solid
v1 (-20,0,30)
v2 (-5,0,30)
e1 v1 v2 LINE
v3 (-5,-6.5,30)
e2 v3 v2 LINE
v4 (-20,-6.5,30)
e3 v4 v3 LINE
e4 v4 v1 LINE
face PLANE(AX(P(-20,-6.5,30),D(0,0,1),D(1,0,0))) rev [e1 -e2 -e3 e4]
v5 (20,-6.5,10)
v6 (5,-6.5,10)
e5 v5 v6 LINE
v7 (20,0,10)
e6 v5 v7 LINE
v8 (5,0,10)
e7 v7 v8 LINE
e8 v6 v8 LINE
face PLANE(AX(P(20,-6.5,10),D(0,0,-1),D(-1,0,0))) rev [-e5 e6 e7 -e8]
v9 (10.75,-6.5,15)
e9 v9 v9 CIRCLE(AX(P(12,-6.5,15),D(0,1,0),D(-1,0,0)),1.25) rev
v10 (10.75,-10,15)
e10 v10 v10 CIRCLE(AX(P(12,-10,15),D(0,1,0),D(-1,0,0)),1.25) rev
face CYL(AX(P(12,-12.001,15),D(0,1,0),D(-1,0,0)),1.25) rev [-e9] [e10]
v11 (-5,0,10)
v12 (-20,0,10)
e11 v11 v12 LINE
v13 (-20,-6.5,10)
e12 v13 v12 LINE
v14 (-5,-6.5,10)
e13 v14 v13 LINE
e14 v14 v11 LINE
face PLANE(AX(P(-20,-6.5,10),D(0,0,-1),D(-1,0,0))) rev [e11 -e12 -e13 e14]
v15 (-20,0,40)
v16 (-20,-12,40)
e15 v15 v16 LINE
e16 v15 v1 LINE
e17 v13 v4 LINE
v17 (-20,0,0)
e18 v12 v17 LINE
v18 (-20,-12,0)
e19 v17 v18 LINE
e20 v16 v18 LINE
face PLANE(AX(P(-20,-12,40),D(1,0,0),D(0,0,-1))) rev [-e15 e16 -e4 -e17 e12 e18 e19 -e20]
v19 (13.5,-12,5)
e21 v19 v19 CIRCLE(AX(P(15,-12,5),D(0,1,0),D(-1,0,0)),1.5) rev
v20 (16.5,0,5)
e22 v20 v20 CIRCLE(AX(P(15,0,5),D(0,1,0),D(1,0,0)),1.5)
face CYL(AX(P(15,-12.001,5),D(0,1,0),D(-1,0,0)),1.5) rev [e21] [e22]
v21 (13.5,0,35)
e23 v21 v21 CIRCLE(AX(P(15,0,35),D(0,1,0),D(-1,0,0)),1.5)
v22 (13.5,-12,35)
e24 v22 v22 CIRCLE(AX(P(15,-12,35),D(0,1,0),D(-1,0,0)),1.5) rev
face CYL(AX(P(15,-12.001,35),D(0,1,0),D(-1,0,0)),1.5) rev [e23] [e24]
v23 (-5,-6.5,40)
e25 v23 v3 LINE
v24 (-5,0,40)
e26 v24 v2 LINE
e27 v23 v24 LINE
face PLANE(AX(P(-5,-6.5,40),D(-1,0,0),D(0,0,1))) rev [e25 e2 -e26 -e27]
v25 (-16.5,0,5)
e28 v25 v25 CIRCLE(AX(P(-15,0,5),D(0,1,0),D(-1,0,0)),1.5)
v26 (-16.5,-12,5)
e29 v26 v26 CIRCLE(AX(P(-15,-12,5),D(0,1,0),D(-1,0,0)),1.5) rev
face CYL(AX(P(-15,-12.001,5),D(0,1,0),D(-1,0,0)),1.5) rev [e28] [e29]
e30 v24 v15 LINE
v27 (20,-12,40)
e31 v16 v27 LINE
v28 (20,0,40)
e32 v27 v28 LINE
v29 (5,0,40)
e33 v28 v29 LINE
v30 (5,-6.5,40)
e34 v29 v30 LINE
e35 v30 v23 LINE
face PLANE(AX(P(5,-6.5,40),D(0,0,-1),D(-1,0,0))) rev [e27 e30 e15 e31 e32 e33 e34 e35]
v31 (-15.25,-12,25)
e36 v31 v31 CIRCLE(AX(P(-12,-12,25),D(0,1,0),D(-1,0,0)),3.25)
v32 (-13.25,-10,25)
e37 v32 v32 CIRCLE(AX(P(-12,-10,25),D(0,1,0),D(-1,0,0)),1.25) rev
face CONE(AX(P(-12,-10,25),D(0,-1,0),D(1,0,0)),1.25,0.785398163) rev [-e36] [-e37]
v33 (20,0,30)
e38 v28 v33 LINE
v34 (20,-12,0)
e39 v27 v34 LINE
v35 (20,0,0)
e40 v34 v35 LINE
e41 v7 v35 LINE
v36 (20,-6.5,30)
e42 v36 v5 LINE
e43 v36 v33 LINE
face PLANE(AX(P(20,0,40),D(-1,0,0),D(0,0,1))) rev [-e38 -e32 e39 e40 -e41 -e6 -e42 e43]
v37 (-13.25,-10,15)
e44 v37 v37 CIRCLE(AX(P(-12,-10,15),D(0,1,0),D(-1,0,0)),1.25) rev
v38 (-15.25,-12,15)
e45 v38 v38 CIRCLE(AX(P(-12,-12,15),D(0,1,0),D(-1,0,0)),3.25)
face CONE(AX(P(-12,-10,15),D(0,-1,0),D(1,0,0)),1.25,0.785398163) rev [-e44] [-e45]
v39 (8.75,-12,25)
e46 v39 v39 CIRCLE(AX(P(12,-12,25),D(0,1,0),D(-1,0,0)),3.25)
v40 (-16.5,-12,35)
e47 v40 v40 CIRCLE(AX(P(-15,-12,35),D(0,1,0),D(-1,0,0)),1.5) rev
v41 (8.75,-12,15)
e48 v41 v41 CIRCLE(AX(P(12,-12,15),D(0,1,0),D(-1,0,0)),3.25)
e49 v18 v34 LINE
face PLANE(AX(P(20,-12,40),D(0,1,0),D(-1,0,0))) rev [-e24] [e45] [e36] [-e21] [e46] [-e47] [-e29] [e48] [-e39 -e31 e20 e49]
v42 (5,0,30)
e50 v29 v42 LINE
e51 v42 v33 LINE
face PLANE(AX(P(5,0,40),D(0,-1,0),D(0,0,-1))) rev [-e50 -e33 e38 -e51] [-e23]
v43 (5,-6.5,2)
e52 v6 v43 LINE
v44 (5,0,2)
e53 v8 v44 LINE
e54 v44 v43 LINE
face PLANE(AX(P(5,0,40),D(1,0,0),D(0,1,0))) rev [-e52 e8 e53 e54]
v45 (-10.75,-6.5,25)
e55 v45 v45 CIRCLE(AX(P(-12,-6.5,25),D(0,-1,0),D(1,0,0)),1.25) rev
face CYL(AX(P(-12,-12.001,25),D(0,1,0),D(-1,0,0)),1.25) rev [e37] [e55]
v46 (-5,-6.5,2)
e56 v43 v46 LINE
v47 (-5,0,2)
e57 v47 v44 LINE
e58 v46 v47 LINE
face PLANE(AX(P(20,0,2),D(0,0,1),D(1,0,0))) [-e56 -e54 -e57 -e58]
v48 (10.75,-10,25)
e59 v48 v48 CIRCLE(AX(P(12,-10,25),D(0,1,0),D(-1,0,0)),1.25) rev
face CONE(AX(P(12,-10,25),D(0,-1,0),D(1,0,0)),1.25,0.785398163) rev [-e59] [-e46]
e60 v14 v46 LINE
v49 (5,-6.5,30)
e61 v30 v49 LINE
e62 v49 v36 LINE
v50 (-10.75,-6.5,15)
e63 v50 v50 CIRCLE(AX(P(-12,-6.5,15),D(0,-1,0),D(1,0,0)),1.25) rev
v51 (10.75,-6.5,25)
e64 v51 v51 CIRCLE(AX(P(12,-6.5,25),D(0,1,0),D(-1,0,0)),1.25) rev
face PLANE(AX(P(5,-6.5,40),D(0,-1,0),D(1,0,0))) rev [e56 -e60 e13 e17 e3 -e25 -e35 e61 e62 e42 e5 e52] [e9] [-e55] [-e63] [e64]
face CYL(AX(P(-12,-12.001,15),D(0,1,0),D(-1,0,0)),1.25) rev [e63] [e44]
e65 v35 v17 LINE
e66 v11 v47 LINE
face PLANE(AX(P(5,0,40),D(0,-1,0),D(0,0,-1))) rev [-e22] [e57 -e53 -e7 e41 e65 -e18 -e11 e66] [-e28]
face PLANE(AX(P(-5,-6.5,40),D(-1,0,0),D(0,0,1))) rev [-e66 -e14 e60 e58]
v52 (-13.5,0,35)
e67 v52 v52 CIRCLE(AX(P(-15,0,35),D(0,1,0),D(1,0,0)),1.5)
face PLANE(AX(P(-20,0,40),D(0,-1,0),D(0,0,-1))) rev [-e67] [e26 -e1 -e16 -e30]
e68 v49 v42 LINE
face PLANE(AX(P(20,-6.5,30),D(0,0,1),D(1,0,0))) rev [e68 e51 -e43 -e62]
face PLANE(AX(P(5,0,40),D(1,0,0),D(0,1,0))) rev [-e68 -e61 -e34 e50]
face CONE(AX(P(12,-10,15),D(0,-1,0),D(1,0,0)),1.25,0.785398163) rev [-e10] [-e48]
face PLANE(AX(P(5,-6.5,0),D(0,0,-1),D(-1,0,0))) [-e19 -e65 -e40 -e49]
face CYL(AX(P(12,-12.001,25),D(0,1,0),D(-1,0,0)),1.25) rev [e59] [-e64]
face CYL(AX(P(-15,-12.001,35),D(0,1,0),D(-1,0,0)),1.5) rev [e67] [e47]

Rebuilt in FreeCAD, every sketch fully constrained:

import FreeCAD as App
import Part
import Sketcher

V = App.Vector
Q = App.Units.Quantity


def edges_at(feature, points):
    """Names of the edges that pass closest to the given points."""
    edges = feature.Shape.Edges
    near = lambda p: min(range(len(edges)), key=lambda i: edges[i].distToShape(Part.Vertex(*p))[0])
    return sorted({f"Edge{near(p) + 1}" for p in points})

doc = App.newDocument("Part")
body = doc.addObject("PartDesign::Body", "Body")

# Sketch on XY plane
sketch1 = body.newObject("Sketcher::SketchObject", "Sketch")
sketch1.AttachmentSupport = (doc.getObject("XY_Plane"), [""])
sketch1.MapMode = "FlatFace"
sketch1.addGeometry(Part.LineSegment(V(20, 0, 0), V(5, 0, 0)), False)
sketch1.addGeometry(Part.LineSegment(V(5, 0, 0), V(5, -6, 0)), False)
sketch1.addGeometry(Part.LineSegment(V(5, -6, 0), V(-5, -6, 0)), False)
sketch1.addGeometry(Part.LineSegment(V(-5, -6, 0), V(-5, 0, 0)), False)
sketch1.addGeometry(Part.LineSegment(V(-5, 0, 0), V(-20, 0, 0)), False)
sketch1.addGeometry(Part.LineSegment(V(-20, 0, 0), V(-20, -12, 0)), False)
sketch1.addGeometry(Part.LineSegment(V(-20, -12, 0), V(20, -12, 0)), False)
sketch1.addGeometry(Part.LineSegment(V(20, -12, 0), V(20, 0, 0)), False)
sketch1.addConstraint(Sketcher.Constraint("Coincident", 0, 2, 1, 1))
sketch1.addConstraint(Sketcher.Constraint("Coincident", 1, 2, 2, 1))
sketch1.addConstraint(Sketcher.Constraint("Coincident", 2, 2, 3, 1))
sketch1.addConstraint(Sketcher.Constraint("Coincident", 3, 2, 4, 1))
sketch1.addConstraint(Sketcher.Constraint("Coincident", 4, 2, 5, 1))
sketch1.addConstraint(Sketcher.Constraint("Coincident", 5, 2, 6, 1))
sketch1.addConstraint(Sketcher.Constraint("Coincident", 6, 2, 7, 1))
sketch1.addConstraint(Sketcher.Constraint("Coincident", 7, 2, 0, 1))
sketch1.addConstraint(Sketcher.Constraint("Horizontal", 0))
sketch1.addConstraint(Sketcher.Constraint("Vertical", 1))
sketch1.addConstraint(Sketcher.Constraint("Horizontal", 2))
sketch1.addConstraint(Sketcher.Constraint("Vertical", 3))
sketch1.addConstraint(Sketcher.Constraint("Horizontal", 4))
sketch1.addConstraint(Sketcher.Constraint("Vertical", 5))
sketch1.addConstraint(Sketcher.Constraint("Horizontal", 6))
sketch1.addConstraint(Sketcher.Constraint("Vertical", 7))
sketch1.addConstraint(Sketcher.Constraint("Symmetric", 0, 2, 3, 2, -1, 1))
sketch1.addConstraint(Sketcher.Constraint("Symmetric", 4, 2, 7, 2, -2))
sketch1.addConstraint(Sketcher.Constraint("DistanceX", 0, 2, 0, 1, Q("15 mm")))
sketch1.addConstraint(Sketcher.Constraint("DistanceX", 2, 2, 2, 1, Q("10 mm")))
sketch1.addConstraint(Sketcher.Constraint("DistanceY", 5, 2, 5, 1, Q("12 mm")))
sketch1.addConstraint(Sketcher.Constraint("DistanceY", 1, 2, 1, 1, Q("6.5 mm")))
pad1 = body.newObject("PartDesign::Pad", "Pad")
pad1.Profile = sketch1
pad1.Length = 40

# Sketch on XZ plane
sketch2 = body.newObject("Sketcher::SketchObject", "Sketch001")
sketch2.AttachmentSupport = (doc.getObject("XZ_Plane"), [""])
sketch2.MapMode = "FlatFace"
sketch2.addGeometry(Part.Circle(V(-15, 5, 0), V(0, 0, 1), 1.5), False)
sketch2.addConstraint(Sketcher.Constraint("Diameter", 0, Q("3 mm")))
sketch2.addConstraint(Sketcher.Constraint("DistanceX", 0, 3, -1, 1, Q("15 mm")))
sketch2.addConstraint(Sketcher.Constraint("DistanceY", -1, 1, 0, 3, Q("5 mm")))
pocket1 = body.newObject("PartDesign::Pocket", "Pocket")
pocket1.Profile = sketch2
pocket1.Type = "UpToFirst"
pocket1.Reversed = True

# Sketch on XZ plane
sketch3 = body.newObject("Sketcher::SketchObject", "Sketch002")
sketch3.AttachmentSupport = (doc.getObject("XZ_Plane"), [""])
sketch3.MapMode = "FlatFace"
sketch3.addGeometry(Part.Circle(V(-15, 35, 0), V(0, 0, 1), 1.5), False)
sketch3.addConstraint(Sketcher.Constraint("Diameter", 0, Q("3 mm")))
sketch3.addConstraint(Sketcher.Constraint("DistanceX", 0, 3, -1, 1, Q("15 mm")))
sketch3.addConstraint(Sketcher.Constraint("DistanceY", -1, 1, 0, 3, Q("35 mm")))
pocket2 = body.newObject("PartDesign::Pocket", "Pocket001")
pocket2.Profile = sketch3
pocket2.Type = "UpToFirst"
pocket2.Reversed = True

# Sketch on XZ plane
sketch4 = body.newObject("Sketcher::SketchObject", "Sketch003")
sketch4.AttachmentSupport = (doc.getObject("XZ_Plane"), [""])
sketch4.MapMode = "FlatFace"
sketch4.addGeometry(Part.Circle(V(15, 35, 0), V(0, 0, 1), 1.5), False)
sketch4.addConstraint(Sketcher.Constraint("Diameter", 0, Q("3 mm")))
sketch4.addConstraint(Sketcher.Constraint("DistanceX", -1, 1, 0, 3, Q("15 mm")))
sketch4.addConstraint(Sketcher.Constraint("DistanceY", -1, 1, 0, 3, Q("35 mm")))
pocket3 = body.newObject("PartDesign::Pocket", "Pocket002")
pocket3.Profile = sketch4
pocket3.Type = "UpToFirst"
pocket3.Reversed = True

# Sketch on XZ plane
sketch5 = body.newObject("Sketcher::SketchObject", "Sketch004")
sketch5.AttachmentSupport = (doc.getObject("XZ_Plane"), [""])
sketch5.MapMode = "FlatFace"
sketch5.addGeometry(Part.Circle(V(15, 5, 0), V(0, 0, 1), 1.5), False)
sketch5.addConstraint(Sketcher.Constraint("Diameter", 0, Q("3 mm")))
sketch5.addConstraint(Sketcher.Constraint("DistanceX", -1, 1, 0, 3, Q("15 mm")))
sketch5.addConstraint(Sketcher.Constraint("DistanceY", -1, 1, 0, 3, Q("5 mm")))
pocket4 = body.newObject("PartDesign::Pocket", "Pocket003")
pocket4.Profile = sketch5
pocket4.Type = "UpToFirst"
pocket4.Reversed = True

# Sketch on XZ plane
sketch6 = body.newObject("Sketcher::SketchObject", "Sketch005")
sketch6.AttachmentSupport = (doc.getObject("XZ_Plane"), [""])
sketch6.MapMode = "FlatFace"
sketch6.addGeometry(Part.Circle(V(-12, 25, 0), V(0, 0, 1), 1.2), False)
sketch6.addConstraint(Sketcher.Constraint("Diameter", 0, Q("2.5 mm")))
sketch6.addConstraint(Sketcher.Constraint("DistanceX", 0, 3, -1, 1, Q("12 mm")))
sketch6.addConstraint(Sketcher.Constraint("DistanceY", -1, 1, 0, 3, Q("25 mm")))
pocket5 = body.newObject("PartDesign::Pocket", "Pocket004")
pocket5.Profile = sketch6
pocket5.Type = "UpToFirst"
pocket5.Reversed = True

# Sketch on XZ plane
sketch7 = body.newObject("Sketcher::SketchObject", "Sketch006")
sketch7.AttachmentSupport = (doc.getObject("XZ_Plane"), [""])
sketch7.MapMode = "FlatFace"
sketch7.addGeometry(Part.Circle(V(-12, 15, 0), V(0, 0, 1), 1.2), False)
sketch7.addConstraint(Sketcher.Constraint("Diameter", 0, Q("2.5 mm")))
sketch7.addConstraint(Sketcher.Constraint("DistanceX", 0, 3, -1, 1, Q("12 mm")))
sketch7.addConstraint(Sketcher.Constraint("DistanceY", -1, 1, 0, 3, Q("15 mm")))
pocket6 = body.newObject("PartDesign::Pocket", "Pocket005")
pocket6.Profile = sketch7
pocket6.Type = "UpToFirst"
pocket6.Reversed = True

# Sketch on XZ plane
sketch8 = body.newObject("Sketcher::SketchObject", "Sketch007")
sketch8.AttachmentSupport = (doc.getObject("XZ_Plane"), [""])
sketch8.MapMode = "FlatFace"
sketch8.addGeometry(Part.Circle(V(12, 25, 0), V(0, 0, 1), 1.2), False)
sketch8.addConstraint(Sketcher.Constraint("Diameter", 0, Q("2.5 mm")))
sketch8.addConstraint(Sketcher.Constraint("DistanceX", -1, 1, 0, 3, Q("12 mm")))
sketch8.addConstraint(Sketcher.Constraint("DistanceY", -1, 1, 0, 3, Q("25 mm")))
pocket7 = body.newObject("PartDesign::Pocket", "Pocket006")
pocket7.Profile = sketch8
pocket7.Type = "UpToFirst"
pocket7.Reversed = True

# Sketch on XZ plane
sketch9 = body.newObject("Sketcher::SketchObject", "Sketch008")
sketch9.AttachmentSupport = (doc.getObject("XZ_Plane"), [""])
sketch9.MapMode = "FlatFace"
sketch9.addGeometry(Part.Circle(V(12, 15, 0), V(0, 0, 1), 1.2), False)
sketch9.addConstraint(Sketcher.Constraint("Diameter", 0, Q("2.5 mm")))
sketch9.addConstraint(Sketcher.Constraint("DistanceX", -1, 1, 0, 3, Q("12 mm")))
sketch9.addConstraint(Sketcher.Constraint("DistanceY", -1, 1, 0, 3, Q("15 mm")))
pocket8 = body.newObject("PartDesign::Pocket", "Pocket007")
pocket8.Profile = sketch9
pocket8.Type = "UpToFirst"
pocket8.Reversed = True

# Sketch on XZ plane
sketch10 = body.newObject("Sketcher::SketchObject", "Sketch009")
sketch10.AttachmentSupport = (doc.getObject("XZ_Plane"), [""])
sketch10.MapMode = "FlatFace"
sketch10.addGeometry(Part.LineSegment(V(-20, 10, 0), V(-20, 30, 0)), False)
sketch10.addGeometry(Part.LineSegment(V(-20, 30, 0), V(-5, 30, 0)), False)
sketch10.addGeometry(Part.LineSegment(V(-5, 30, 0), V(-5, 10, 0)), False)
sketch10.addGeometry(Part.LineSegment(V(-5, 10, 0), V(-20, 10, 0)), False)
sketch10.addGeometry(Part.LineSegment(V(5, 10, 0), V(5, 30, 0)), False)
sketch10.addGeometry(Part.LineSegment(V(5, 30, 0), V(20, 30, 0)), False)
sketch10.addGeometry(Part.LineSegment(V(20, 30, 0), V(20, 10, 0)), False)
sketch10.addGeometry(Part.LineSegment(V(20, 10, 0), V(5, 10, 0)), False)
sketch10.addConstraint(Sketcher.Constraint("Coincident", 0, 2, 1, 1))
sketch10.addConstraint(Sketcher.Constraint("Coincident", 1, 2, 2, 1))
sketch10.addConstraint(Sketcher.Constraint("Coincident", 2, 2, 3, 1))
sketch10.addConstraint(Sketcher.Constraint("Coincident", 3, 2, 0, 1))
sketch10.addConstraint(Sketcher.Constraint("Coincident", 4, 2, 5, 1))
sketch10.addConstraint(Sketcher.Constraint("Coincident", 5, 2, 6, 1))
sketch10.addConstraint(Sketcher.Constraint("Coincident", 6, 2, 7, 1))
sketch10.addConstraint(Sketcher.Constraint("Coincident", 7, 2, 4, 1))
sketch10.addConstraint(Sketcher.Constraint("Vertical", 0))
sketch10.addConstraint(Sketcher.Constraint("Horizontal", 1))
sketch10.addConstraint(Sketcher.Constraint("Vertical", 2))
sketch10.addConstraint(Sketcher.Constraint("Horizontal", 3))
sketch10.addConstraint(Sketcher.Constraint("Vertical", 4))
sketch10.addConstraint(Sketcher.Constraint("Horizontal", 5))
sketch10.addConstraint(Sketcher.Constraint("Vertical", 6))
sketch10.addConstraint(Sketcher.Constraint("Horizontal", 7))
sketch10.addConstraint(Sketcher.Constraint("Symmetric", 1, 2, 4, 2, -2))
sketch10.addConstraint(Sketcher.Constraint("Symmetric", 3, 2, 6, 2, -2))
sketch10.addConstraint(Sketcher.Constraint("DistanceX", 1, 1, 1, 2, Q("15 mm")))
sketch10.addConstraint(Sketcher.Constraint("DistanceY", 0, 1, 0, 2, Q("20 mm")))
sketch10.addConstraint(Sketcher.Constraint("DistanceX", 0, 2, -1, 1, Q("20 mm")))
sketch10.addConstraint(Sketcher.Constraint("DistanceY", -1, 1, 0, 2, Q("30 mm")))
pocket9 = body.newObject("PartDesign::Pocket", "Pocket008")
pocket9.Profile = sketch10
pocket9.Length = 6.5
pocket9.Reversed = True

# Sketch on XY plane
sketch11 = body.newObject("Sketcher::SketchObject", "Sketch010")
sketch11.AttachmentSupport = (doc.getObject("XY_Plane"), [""])
sketch11.MapMode = "FlatFace"
sketch11.addGeometry(Part.LineSegment(V(20, 0, 0), V(20, -12, 0)), False)
sketch11.addGeometry(Part.LineSegment(V(20, -12, 0), V(-20, -12, 0)), False)
sketch11.addGeometry(Part.LineSegment(V(-20, -12, 0), V(-20, 0, 0)), False)
sketch11.addGeometry(Part.LineSegment(V(-20, 0, 0), V(20, 0, 0)), False)
sketch11.addConstraint(Sketcher.Constraint("Coincident", 0, 2, 1, 1))
sketch11.addConstraint(Sketcher.Constraint("Coincident", 1, 2, 2, 1))
sketch11.addConstraint(Sketcher.Constraint("Coincident", 2, 2, 3, 1))
sketch11.addConstraint(Sketcher.Constraint("Coincident", 3, 2, 0, 1))
sketch11.addConstraint(Sketcher.Constraint("Vertical", 0))
sketch11.addConstraint(Sketcher.Constraint("Horizontal", 1))
sketch11.addConstraint(Sketcher.Constraint("Vertical", 2))
sketch11.addConstraint(Sketcher.Constraint("Horizontal", 3))
sketch11.addConstraint(Sketcher.Constraint("Symmetric", 2, 2, 3, 2, -1, 1))
sketch11.addConstraint(Sketcher.Constraint("DistanceX", 1, 2, 1, 1, Q("40 mm")))
sketch11.addConstraint(Sketcher.Constraint("DistanceY", 0, 2, 0, 1, Q("12 mm")))
pad2 = body.newObject("PartDesign::Pad", "Pad001")
pad2.Profile = sketch11
pad2.Length = 2
doc.recompute()

chamfer = body.newObject("PartDesign::Chamfer", "Chamfer")
chamfer.Base = (pad2, edges_at(pad2, [
    (-13.25, -12, 25),
    (-13.25, -12, 15),
    (10.75, -12, 25),
    (10.75, -12, 15),
]))
chamfer.Size = 2

doc.recompute()
